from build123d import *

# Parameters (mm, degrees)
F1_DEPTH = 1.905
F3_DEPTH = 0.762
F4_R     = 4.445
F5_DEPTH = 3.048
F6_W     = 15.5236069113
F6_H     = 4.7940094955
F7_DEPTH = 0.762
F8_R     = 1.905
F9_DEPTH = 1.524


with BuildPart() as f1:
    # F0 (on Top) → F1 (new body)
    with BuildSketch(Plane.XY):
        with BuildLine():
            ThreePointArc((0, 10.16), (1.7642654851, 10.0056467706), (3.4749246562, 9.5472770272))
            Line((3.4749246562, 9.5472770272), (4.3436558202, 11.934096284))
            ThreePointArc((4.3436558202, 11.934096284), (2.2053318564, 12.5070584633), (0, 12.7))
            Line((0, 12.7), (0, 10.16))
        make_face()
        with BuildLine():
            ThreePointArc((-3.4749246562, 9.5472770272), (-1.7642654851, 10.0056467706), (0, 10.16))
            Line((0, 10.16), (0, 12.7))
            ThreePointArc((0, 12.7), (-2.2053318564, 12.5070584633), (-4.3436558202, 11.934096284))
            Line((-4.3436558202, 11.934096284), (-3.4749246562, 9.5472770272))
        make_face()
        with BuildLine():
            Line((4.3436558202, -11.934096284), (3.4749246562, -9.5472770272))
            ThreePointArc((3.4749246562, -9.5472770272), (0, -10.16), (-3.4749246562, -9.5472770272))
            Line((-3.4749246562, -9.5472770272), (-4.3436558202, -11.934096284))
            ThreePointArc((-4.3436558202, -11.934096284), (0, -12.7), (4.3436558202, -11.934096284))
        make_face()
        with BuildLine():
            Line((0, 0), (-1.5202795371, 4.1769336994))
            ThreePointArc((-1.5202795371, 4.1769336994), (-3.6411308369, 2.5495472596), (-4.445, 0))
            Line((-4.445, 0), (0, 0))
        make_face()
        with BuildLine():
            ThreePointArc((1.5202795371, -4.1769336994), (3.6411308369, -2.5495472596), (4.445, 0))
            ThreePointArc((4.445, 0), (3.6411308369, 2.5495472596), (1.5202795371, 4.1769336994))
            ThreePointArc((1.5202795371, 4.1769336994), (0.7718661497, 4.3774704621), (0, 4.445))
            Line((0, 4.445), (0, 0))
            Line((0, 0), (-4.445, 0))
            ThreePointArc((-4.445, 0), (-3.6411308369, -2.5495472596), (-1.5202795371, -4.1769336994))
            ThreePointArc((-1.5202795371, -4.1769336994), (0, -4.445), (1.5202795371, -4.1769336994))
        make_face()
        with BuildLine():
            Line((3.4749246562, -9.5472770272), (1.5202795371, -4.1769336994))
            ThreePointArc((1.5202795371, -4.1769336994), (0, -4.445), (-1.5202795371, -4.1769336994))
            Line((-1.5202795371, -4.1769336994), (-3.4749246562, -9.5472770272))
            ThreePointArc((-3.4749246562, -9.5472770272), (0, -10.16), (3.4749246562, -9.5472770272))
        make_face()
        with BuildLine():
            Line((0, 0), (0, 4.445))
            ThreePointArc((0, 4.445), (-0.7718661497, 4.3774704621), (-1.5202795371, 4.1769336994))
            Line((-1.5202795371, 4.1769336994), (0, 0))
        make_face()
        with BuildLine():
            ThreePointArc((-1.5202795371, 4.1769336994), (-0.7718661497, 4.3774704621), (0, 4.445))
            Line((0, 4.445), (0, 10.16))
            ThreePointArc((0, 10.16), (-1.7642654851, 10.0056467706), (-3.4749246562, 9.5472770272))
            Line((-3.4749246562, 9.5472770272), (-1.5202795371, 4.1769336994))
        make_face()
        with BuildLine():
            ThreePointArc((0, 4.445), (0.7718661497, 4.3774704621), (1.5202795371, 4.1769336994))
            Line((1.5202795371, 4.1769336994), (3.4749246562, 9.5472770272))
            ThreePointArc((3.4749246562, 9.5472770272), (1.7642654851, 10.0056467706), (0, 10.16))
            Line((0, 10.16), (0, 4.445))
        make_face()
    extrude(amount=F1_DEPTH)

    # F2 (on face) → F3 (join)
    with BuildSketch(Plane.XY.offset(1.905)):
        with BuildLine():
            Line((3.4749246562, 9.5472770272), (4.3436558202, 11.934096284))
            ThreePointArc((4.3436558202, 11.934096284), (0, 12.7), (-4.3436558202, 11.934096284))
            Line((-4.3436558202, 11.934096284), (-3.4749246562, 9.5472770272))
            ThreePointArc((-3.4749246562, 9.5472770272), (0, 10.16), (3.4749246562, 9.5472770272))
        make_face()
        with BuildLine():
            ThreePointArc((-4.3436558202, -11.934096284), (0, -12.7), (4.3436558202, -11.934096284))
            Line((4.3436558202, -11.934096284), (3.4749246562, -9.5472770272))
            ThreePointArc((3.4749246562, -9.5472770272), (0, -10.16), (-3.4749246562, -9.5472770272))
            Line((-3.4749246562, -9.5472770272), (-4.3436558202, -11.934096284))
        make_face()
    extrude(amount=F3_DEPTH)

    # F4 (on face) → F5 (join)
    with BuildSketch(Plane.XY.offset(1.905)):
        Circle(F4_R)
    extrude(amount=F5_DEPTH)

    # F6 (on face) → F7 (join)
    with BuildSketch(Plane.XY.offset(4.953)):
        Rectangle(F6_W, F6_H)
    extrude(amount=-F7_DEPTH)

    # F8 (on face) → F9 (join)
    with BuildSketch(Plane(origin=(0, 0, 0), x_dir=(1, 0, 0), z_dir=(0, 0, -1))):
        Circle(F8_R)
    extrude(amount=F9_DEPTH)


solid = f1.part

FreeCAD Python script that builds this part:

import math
import FreeCAD as App
import Part
import Sketcher
Q = App.Units.Quantity

doc = App.newDocument("Part")
body = doc.addObject("PartDesign::Body", "Body")

sketch1 = body.newObject("Sketcher::SketchObject", "Sketch")
sketch1.AttachmentSupport = (doc.getObject("XY_Plane"), [""])
sketch1.MapMode = "FlatFace"
sketch1.addGeometry([
    Part.LineSegment(App.Vector(3.5, 9.5, 0), App.Vector(4.3, 11.9, 0)),
    Part.ArcOfCircle(Part.Circle(App.Vector(0, 0, 0), App.Vector(0, 0, 1), 12.7), math.radians(70), math.radians(90)),
    Part.ArcOfCircle(Part.Circle(App.Vector(0, 0, 0), App.Vector(0, 0, 1), 12.7), math.radians(90), math.radians(110)),
    Part.LineSegment(App.Vector(-4.3, 11.9, 0), App.Vector(-3.5, 9.5, 0)),
    Part.LineSegment(App.Vector(-3.5, 9.5, 0), App.Vector(-1.5, 4.2, 0)),
    Part.ArcOfCircle(Part.Circle(App.Vector(0, 0, 0), App.Vector(0, 0, 1), 4.4), math.radians(110), math.radians(180)),
    Part.ArcOfCircle(Part.Circle(App.Vector(0, 0, 0), App.Vector(0, 0, 1), 4.4), math.radians(180), math.radians(250)),
    Part.LineSegment(App.Vector(-1.5, -4.2, 0), App.Vector(-3.5, -9.5, 0)),
    Part.LineSegment(App.Vector(-3.5, -9.5, 0), App.Vector(-4.3, -11.9, 0)),
    Part.ArcOfCircle(Part.Circle(App.Vector(0, 0, 0), App.Vector(0, 0, 1), 12.7), math.radians(-110), math.radians(-70)),
    Part.LineSegment(App.Vector(4.3, -11.9, 0), App.Vector(3.5, -9.5, 0)),
    Part.LineSegment(App.Vector(3.5, -9.5, 0), App.Vector(1.5, -4.2, 0)),
    Part.ArcOfCircle(Part.Circle(App.Vector(0, 0, 0), App.Vector(0, 0, 1), 4.4), math.radians(-70), math.radians(0)),
    Part.ArcOfCircle(Part.Circle(App.Vector(0, 0, 0), App.Vector(0, 0, 1), 4.4), math.radians(0), math.radians(70)),
    Part.LineSegment(App.Vector(1.5, 4.2, 0), App.Vector(3.5, 9.5, 0)),
], False)
sketch1.addConstraint([
    Sketcher.Constraint("Coincident", 0, 2, 1, 1),
    Sketcher.Constraint("Tangent", 1, 2, 2, 1),
    Sketcher.Constraint("Coincident", 2, 2, 3, 1),
    Sketcher.Constraint("Coincident", 3, 2, 4, 1),
    Sketcher.Constraint("Coincident", 4, 2, 5, 1),
    Sketcher.Constraint("Tangent", 5, 2, 6, 1),
    Sketcher.Constraint("Coincident", 6, 2, 7, 1),
    Sketcher.Constraint("Coincident", 7, 2, 8, 1),
    Sketcher.Constraint("Coincident", 8, 2, 9, 1),
    Sketcher.Constraint("Coincident", 9, 2, 10, 1),
    Sketcher.Constraint("Coincident", 10, 2, 11, 1),
    Sketcher.Constraint("Coincident", 11, 2, 12, 1),
    Sketcher.Constraint("Tangent", 12, 2, 13, 1),
    Sketcher.Constraint("Coincident", 13, 2, 14, 1),
    Sketcher.Constraint("Coincident", 14, 2, 0, 1),
    Sketcher.Constraint("Coincident", 1, 3, -1, 1),
    Sketcher.Constraint("Coincident", 5, 3, -1, 1),
    Sketcher.Constraint("Coincident", 9, 3, -1, 1),
    Sketcher.Constraint("Coincident", 12, 3, -1, 1),
    Sketcher.Constraint("Equal", 1, 2),
    Sketcher.Constraint("Equal", 5, 6),
    Sketcher.Constraint("Equal", 2, 9),
    Sketcher.Constraint("Equal", 6, 12),
    Sketcher.Constraint("Equal", 12, 13),
    Sketcher.Constraint("Symmetric", 3, 2, 10, 2, -1, 1),
    Sketcher.Constraint("Symmetric", 7, 2, 14, 2, -1, 1),
    Sketcher.Constraint("Symmetric", 7, 2, 10, 2, -2),
    Sketcher.Constraint("PointOnObject", 1, 2, -2),
    Sketcher.Constraint("PointOnObject", 5, 2, -1),
    Sketcher.Constraint("PointOnObject", 12, 2, -1),
    Sketcher.Constraint("Parallel", 3, 4),
    Sketcher.Constraint("Parallel", 0, 7),
    Sketcher.Constraint("Parallel", 7, 8),
    Sketcher.Constraint("Parallel", 4, 10),
    Sketcher.Constraint("Parallel", 10, 11),
    Sketcher.Constraint("Parallel", 8, 14),
    Sketcher.Constraint("Horizontal", 0, 2, 2, 2),
    Sketcher.Constraint("Radius", 1, Q("0.5 in")),
    Sketcher.Constraint("Angle", 0, Q("70 deg")),
    Sketcher.Constraint("Radius", 5, Q("0.175 in")),
    Sketcher.Constraint("Distance", 0, Q("0.1 in")),
    Sketcher.Constraint("DistanceX", 4, 2, -1, 1, Q("1.52028 mm")),
])
pad1 = body.newObject("PartDesign::Pad", "Pad")
pad1.Profile = sketch1
pad1.Length = Q("0.075 in")

sketch2 = body.newObject("Sketcher::SketchObject", "Sketch001")
sketch2.AttachmentSupport = (doc.getObject("XY_Plane"), [""])
sketch2.MapMode = "FlatFace"
sketch2.AttachmentOffset = App.Placement(App.Vector(0, 0, 0.075 * 25.4), App.Rotation())
sketch2.addGeometry([
    Part.LineSegment(App.Vector(3.5, 9.5, 0), App.Vector(4.3, 11.9, 0)),
    Part.ArcOfCircle(Part.Circle(App.Vector(0, 0, 0), App.Vector(0, 0, 1), 12.7), math.radians(70), math.radians(110)),
    Part.LineSegment(App.Vector(-4.3, 11.9, 0), App.Vector(-3.5, 9.5, 0)),
    Part.ArcOfCircle(Part.Circle(App.Vector(0, 0, 0), App.Vector(0, 0, 1), 10.2), math.radians(70), math.radians(110)),
    Part.ArcOfCircle(Part.Circle(App.Vector(0, 0, 0), App.Vector(0, 0, 1), 12.7), math.radians(-110), math.radians(-70)),
    Part.LineSegment(App.Vector(4.3, -11.9, 0), App.Vector(3.5, -9.5, 0)),
    Part.ArcOfCircle(Part.Circle(App.Vector(0, 0, 0), App.Vector(0, 0, 1), 10.2), math.radians(-110), math.radians(-70)),
    Part.LineSegment(App.Vector(-3.5, -9.5, 0), App.Vector(-4.3, -11.9, 0)),
], False)
sketch2.addConstraint([
    Sketcher.Constraint("Coincident", 0, 2, 1, 1),
    Sketcher.Constraint("Coincident", 1, 2, 2, 1),
    Sketcher.Constraint("Coincident", 2, 2, 3, 2),
    Sketcher.Constraint("Coincident", 3, 1, 0, 1),
    Sketcher.Constraint("Coincident", 4, 2, 5, 1),
    Sketcher.Constraint("Coincident", 5, 2, 6, 2),
    Sketcher.Constraint("Coincident", 6, 1, 7, 1),
    Sketcher.Constraint("Coincident", 7, 2, 4, 1),
    Sketcher.Constraint("Coincident", 1, 3, -1, 1),
    Sketcher.Constraint("Coincident", 3, 3, -1, 1),
    Sketcher.Constraint("Coincident", 4, 3, -1, 1),
    Sketcher.Constraint("Coincident", 6, 3, -1, 1),
    Sketcher.Constraint("Equal", 1, 4),
    Sketcher.Constraint("Equal", 3, 6),
    Sketcher.Constraint("Parallel", 2, 5),
    Sketcher.Constraint("Parallel", 0, 7),
    Sketcher.Constraint("Horizontal", 0, 2, 1, 2),
    Sketcher.Constraint("Horizontal", 2, 2, 3, 1),
    Sketcher.Constraint("Horizontal", 5, 2, 6, 1),
    Sketcher.Constraint("Vertical", 0, 2, 4, 2),
    Sketcher.Constraint("Radius", 1, Q("0.5 in")),
    Sketcher.Constraint("Radius", 3, Q("0.4 in")),
    Sketcher.Constraint("Angle", 0, Q("70 deg")),
    Sketcher.Constraint("DistanceX", 1, 2, 0, 2, Q("8.687312 mm")),
])
pad2 = body.newObject("PartDesign::Pad", "Pad001")
pad2.Profile = sketch2
pad2.Length = Q("0.03 in")

sketch3 = body.newObject("Sketcher::SketchObject", "Sketch002")
sketch3.AttachmentSupport = (doc.getObject("XY_Plane"), [""])
sketch3.MapMode = "FlatFace"
sketch3.AttachmentOffset = App.Placement(App.Vector(0, 0, 0.075 * 25.4), App.Rotation())
sketch3.addGeometry(Part.Circle(App.Vector(0, 0, 0), App.Vector(0, 0, 1), 4.4), False)
sketch3.addConstraint([
    Sketcher.Constraint("Coincident", 0, 3, -1, 1),
    Sketcher.Constraint("Diameter", 0, Q("0.35 in")),
])
pad3 = body.newObject("PartDesign::Pad", "Pad002")
pad3.Profile = sketch3
pad3.Length = Q("0.12 in")

sketch4 = body.newObject("Sketcher::SketchObject", "Sketch003")
sketch4.AttachmentSupport = (doc.getObject("XY_Plane"), [""])
sketch4.MapMode = "FlatFace"
sketch4.AttachmentOffset = App.Placement(App.Vector(0, 0, 0.195 * 25.4), App.Rotation())
sketch4.addGeometry([
    Part.LineSegment(App.Vector(-7.8, 2.4, 0), App.Vector(-7.8, -2.4, 0)),
    Part.LineSegment(App.Vector(-7.8, -2.4, 0), App.Vector(7.8, -2.4, 0)),
    Part.LineSegment(App.Vector(7.8, -2.4, 0), App.Vector(7.8, 2.4, 0)),
    Part.LineSegment(App.Vector(7.8, 2.4, 0), App.Vector(-7.8, 2.4, 0)),
], False)
sketch4.addConstraint([
    Sketcher.Constraint("Coincident", 0, 2, 1, 1),
    Sketcher.Constraint("Coincident", 1, 2, 2, 1),
    Sketcher.Constraint("Coincident", 2, 2, 3, 1),
    Sketcher.Constraint("Coincident", 3, 2, 0, 1),
    Sketcher.Constraint("Vertical", 0),
    Sketcher.Constraint("Horizontal", 1),
    Sketcher.Constraint("Vertical", 2),
    Sketcher.Constraint("Horizontal", 3),
    Sketcher.Constraint("Symmetric", 0, 2, 2, 2, -1, 1),
    Sketcher.Constraint("DistanceY", 0, 2, 0, 1, Q("4.794009 mm")),
    Sketcher.Constraint("DistanceX", 1, 1, 1, 2, Q("15.523607 mm")),
])
pad4 = body.newObject("PartDesign::Pad", "Pad003")
pad4.Profile = sketch4
pad4.Length = Q("0.03 in")
pad4.Reversed = True

sketch5 = body.newObject("Sketcher::SketchObject", "Sketch004")
sketch5.AttachmentSupport = (doc.getObject("XY_Plane"), [""])
sketch5.MapMode = "FlatFace"
sketch5.addGeometry(Part.Circle(App.Vector(0, 0, 0), App.Vector(0, 0, 1), 1.9), False)
sketch5.addConstraint([
    Sketcher.Constraint("Coincident", 0, 3, -1, 1),
    Sketcher.Constraint("Diameter", 0, Q("0.15 in")),
])
pad5 = body.newObject("PartDesign::Pad", "Pad004")
pad5.Profile = sketch5
pad5.Length = Q("0.06 in")
pad5.Reversed = True

doc.recompute()
